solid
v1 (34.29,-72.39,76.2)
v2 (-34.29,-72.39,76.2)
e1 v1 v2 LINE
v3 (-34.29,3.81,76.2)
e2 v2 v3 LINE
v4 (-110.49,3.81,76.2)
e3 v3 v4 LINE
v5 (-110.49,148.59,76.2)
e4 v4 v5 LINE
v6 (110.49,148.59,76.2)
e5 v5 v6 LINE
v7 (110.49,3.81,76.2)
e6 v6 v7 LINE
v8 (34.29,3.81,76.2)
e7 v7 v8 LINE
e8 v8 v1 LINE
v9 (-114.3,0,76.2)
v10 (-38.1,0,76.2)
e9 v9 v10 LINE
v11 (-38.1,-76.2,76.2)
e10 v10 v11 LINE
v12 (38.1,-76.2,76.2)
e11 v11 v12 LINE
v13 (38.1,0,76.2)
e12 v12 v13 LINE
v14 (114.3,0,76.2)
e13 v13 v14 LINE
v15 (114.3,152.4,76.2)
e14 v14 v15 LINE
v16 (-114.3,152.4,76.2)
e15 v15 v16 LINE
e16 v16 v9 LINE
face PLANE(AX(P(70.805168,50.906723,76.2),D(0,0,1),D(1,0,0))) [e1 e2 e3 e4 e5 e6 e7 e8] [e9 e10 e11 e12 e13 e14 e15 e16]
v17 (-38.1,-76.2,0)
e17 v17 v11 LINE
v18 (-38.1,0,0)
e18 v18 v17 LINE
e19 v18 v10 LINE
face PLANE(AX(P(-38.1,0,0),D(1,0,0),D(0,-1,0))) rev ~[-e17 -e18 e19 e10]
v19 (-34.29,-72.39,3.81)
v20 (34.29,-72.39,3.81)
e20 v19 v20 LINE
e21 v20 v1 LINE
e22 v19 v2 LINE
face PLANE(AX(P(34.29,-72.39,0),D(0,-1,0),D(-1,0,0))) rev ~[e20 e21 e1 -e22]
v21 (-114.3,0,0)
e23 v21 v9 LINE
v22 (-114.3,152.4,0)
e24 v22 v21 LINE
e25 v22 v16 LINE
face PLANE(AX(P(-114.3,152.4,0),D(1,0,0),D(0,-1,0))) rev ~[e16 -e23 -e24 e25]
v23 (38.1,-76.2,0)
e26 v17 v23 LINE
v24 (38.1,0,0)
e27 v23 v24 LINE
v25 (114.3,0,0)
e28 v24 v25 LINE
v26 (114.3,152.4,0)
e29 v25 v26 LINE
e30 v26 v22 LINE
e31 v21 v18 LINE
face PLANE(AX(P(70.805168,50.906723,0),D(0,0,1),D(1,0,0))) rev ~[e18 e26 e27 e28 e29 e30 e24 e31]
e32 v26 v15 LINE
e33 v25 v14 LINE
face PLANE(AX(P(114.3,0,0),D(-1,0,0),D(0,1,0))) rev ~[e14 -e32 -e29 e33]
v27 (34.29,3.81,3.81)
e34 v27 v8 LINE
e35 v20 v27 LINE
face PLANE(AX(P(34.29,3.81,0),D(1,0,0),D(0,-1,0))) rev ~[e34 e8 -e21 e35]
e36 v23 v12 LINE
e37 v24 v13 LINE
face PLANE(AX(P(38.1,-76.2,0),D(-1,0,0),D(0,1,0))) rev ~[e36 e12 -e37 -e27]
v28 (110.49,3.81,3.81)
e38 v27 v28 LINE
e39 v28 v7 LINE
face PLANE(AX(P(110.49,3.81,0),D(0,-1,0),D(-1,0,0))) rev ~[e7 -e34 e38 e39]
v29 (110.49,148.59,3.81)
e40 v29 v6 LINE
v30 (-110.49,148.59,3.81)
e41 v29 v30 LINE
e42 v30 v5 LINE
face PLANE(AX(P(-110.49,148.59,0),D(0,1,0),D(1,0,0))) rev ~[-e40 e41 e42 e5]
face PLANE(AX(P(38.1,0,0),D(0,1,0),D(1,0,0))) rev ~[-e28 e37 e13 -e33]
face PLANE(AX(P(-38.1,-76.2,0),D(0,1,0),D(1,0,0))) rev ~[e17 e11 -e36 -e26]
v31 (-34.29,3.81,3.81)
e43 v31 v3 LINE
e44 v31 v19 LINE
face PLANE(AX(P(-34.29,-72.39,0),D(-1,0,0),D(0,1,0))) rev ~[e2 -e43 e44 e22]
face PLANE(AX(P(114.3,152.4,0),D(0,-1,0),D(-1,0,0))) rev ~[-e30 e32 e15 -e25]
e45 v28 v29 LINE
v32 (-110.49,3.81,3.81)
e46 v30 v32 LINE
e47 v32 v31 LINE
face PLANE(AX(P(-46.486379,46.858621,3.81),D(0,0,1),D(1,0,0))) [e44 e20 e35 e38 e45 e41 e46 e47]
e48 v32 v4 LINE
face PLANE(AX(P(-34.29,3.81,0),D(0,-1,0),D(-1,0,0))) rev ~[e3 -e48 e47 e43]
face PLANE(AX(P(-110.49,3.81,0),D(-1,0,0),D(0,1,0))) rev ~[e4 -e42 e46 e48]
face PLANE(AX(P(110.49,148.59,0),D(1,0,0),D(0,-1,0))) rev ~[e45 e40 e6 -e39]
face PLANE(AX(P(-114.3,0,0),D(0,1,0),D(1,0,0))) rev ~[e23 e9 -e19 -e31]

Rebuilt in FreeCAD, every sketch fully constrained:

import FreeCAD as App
import Part
import Sketcher

V = App.Vector
Q = App.Units.Quantity


def add_polygon(sketch, points):
    """Adds a closed chain of lines whose ends are joined by coincident constraints."""
    first, n = sketch.GeometryCount, len(points)
    for a, b in zip(points, points[1:] + points[:1]):
        sketch.addGeometry(Part.LineSegment(App.Vector(*a, 0), App.Vector(*b, 0)), False)
    for i in range(n):
        sketch.addConstraint(Sketcher.Constraint("Coincident", first + i, 2, first + (i + 1) % n, 1))

doc = App.newDocument("Part")
body = doc.addObject("PartDesign::Body", "Body")

# Sketch on XY plane
sketch1 = body.newObject("Sketcher::SketchObject", "Sketch")
sketch1.AttachmentSupport = (doc.getObject("XY_Plane"), [""])
sketch1.MapMode = "FlatFace"
add_polygon(sketch1, [(-110, 149), (-110, 4), (-34, 4), (-34, -72), (34, -72), (34, 4), (110, 4), (110, 149)])  # lines 0-7
sketch1.addConstraint(Sketcher.Constraint("Vertical", 0))
sketch1.addConstraint(Sketcher.Constraint("Horizontal", 1))
sketch1.addConstraint(Sketcher.Constraint("Vertical", 2))
sketch1.addConstraint(Sketcher.Constraint("Horizontal", 3))
sketch1.addConstraint(Sketcher.Constraint("Vertical", 4))
sketch1.addConstraint(Sketcher.Constraint("Horizontal", 5))
sketch1.addConstraint(Sketcher.Constraint("Vertical", 6))
sketch1.addConstraint(Sketcher.Constraint("Horizontal", 7))
sketch1.addConstraint(Sketcher.Constraint("Symmetric", 1, 2, 4, 2, -2))
sketch1.addConstraint(Sketcher.Constraint("Equal", 1, 5))
sketch1.addConstraint(Sketcher.Constraint("Equal", 5, 2))
sketch1.addConstraint(Sketcher.Constraint("DistanceX", 1, 1, 1, 2, Q("3 in")))
sketch1.addConstraint(Sketcher.Constraint("DistanceX", 3, 1, 3, 2, Q("2.7 in")))
sketch1.addConstraint(Sketcher.Constraint("DistanceY", 0, 2, 0, 1, Q("5.7 in")))
sketch1.addConstraint(Sketcher.Constraint("DistanceY", -1, 1, 0, 2, Q("0.15 in")))
pad1 = body.newObject("PartDesign::Pad", "Pad")
pad1.Profile = sketch1
pad1.Length = Q("0.15 in")

# Sketch on XY plane
sketch2 = body.newObject("Sketcher::SketchObject", "Sketch001")
sketch2.AttachmentSupport = (doc.getObject("XY_Plane"), [""])
sketch2.MapMode = "FlatFace"
add_polygon(sketch2, [(114, 152), (-114, 152), (-114, 0), (-38, 0), (-38, -76), (38, -76), (38, 0), (114, 0)])  # lines 0-7
add_polygon(sketch2, [(110, 149), (110, 4), (34, 4), (34, -72), (-34, -72), (-34, 4), (-110, 4), (-110, 149)])  # lines 8-15
sketch2.addConstraint(Sketcher.Constraint("Horizontal", 0))
sketch2.addConstraint(Sketcher.Constraint("Vertical", 1))
sketch2.addConstraint(Sketcher.Constraint("Horizontal", 2))
sketch2.addConstraint(Sketcher.Constraint("Vertical", 3))
sketch2.addConstraint(Sketcher.Constraint("Horizontal", 4))
sketch2.addConstraint(Sketcher.Constraint("Vertical", 5))
sketch2.addConstraint(Sketcher.Constraint("Horizontal", 6))
sketch2.addConstraint(Sketcher.Constraint("Vertical", 7))
sketch2.addConstraint(Sketcher.Constraint("Vertical", 8))
sketch2.addConstraint(Sketcher.Constraint("Horizontal", 9))
sketch2.addConstraint(Sketcher.Constraint("Vertical", 10))
sketch2.addConstraint(Sketcher.Constraint("Horizontal", 11))
sketch2.addConstraint(Sketcher.Constraint("Vertical", 12))
sketch2.addConstraint(Sketcher.Constraint("Horizontal", 13))
sketch2.addConstraint(Sketcher.Constraint("Vertical", 14))
sketch2.addConstraint(Sketcher.Constraint("Horizontal", 15))
sketch2.addConstraint(Sketcher.Constraint("Symmetric", 2, 2, 5, 2, -1, 1))
sketch2.addConstraint(Sketcher.Constraint("Symmetric", 1, 2, 6, 2, -2))
sketch2.addConstraint(Sketcher.Constraint("Symmetric", 9, 2, 12, 2, -2))
sketch2.addConstraint(Sketcher.Constraint("Equal", 2, 4))
sketch2.addConstraint(Sketcher.Constraint("Equal", 6, 9))
sketch2.addConstraint(Sketcher.Constraint("Equal", 9, 13))
sketch2.addConstraint(Sketcher.Constraint("Equal", 13, 3))
sketch2.addConstraint(Sketcher.Constraint("Equal", 5, 10))
sketch2.addConstraint(Sketcher.Constraint("DistanceX", 0, 2, 0, 1, Q("9 in")))
sketch2.addConstraint(Sketcher.Constraint("DistanceY", 1, 2, 1, 1, Q("6 in")))
sketch2.addConstraint(Sketcher.Constraint("DistanceX", 11, 2, 11, 1, Q("2.7 in")))
sketch2.addConstraint(Sketcher.Constraint("DistanceY", 8, 2, 8, 1, Q("5.7 in")))
sketch2.addConstraint(Sketcher.Constraint("DistanceY", -1, 1, 8, 2, Q("0.15 in")))
pad2 = body.newObject("PartDesign::Pad", "Pad001")
pad2.Profile = sketch2
pad2.Length = Q("3 in")

doc.recompute()
